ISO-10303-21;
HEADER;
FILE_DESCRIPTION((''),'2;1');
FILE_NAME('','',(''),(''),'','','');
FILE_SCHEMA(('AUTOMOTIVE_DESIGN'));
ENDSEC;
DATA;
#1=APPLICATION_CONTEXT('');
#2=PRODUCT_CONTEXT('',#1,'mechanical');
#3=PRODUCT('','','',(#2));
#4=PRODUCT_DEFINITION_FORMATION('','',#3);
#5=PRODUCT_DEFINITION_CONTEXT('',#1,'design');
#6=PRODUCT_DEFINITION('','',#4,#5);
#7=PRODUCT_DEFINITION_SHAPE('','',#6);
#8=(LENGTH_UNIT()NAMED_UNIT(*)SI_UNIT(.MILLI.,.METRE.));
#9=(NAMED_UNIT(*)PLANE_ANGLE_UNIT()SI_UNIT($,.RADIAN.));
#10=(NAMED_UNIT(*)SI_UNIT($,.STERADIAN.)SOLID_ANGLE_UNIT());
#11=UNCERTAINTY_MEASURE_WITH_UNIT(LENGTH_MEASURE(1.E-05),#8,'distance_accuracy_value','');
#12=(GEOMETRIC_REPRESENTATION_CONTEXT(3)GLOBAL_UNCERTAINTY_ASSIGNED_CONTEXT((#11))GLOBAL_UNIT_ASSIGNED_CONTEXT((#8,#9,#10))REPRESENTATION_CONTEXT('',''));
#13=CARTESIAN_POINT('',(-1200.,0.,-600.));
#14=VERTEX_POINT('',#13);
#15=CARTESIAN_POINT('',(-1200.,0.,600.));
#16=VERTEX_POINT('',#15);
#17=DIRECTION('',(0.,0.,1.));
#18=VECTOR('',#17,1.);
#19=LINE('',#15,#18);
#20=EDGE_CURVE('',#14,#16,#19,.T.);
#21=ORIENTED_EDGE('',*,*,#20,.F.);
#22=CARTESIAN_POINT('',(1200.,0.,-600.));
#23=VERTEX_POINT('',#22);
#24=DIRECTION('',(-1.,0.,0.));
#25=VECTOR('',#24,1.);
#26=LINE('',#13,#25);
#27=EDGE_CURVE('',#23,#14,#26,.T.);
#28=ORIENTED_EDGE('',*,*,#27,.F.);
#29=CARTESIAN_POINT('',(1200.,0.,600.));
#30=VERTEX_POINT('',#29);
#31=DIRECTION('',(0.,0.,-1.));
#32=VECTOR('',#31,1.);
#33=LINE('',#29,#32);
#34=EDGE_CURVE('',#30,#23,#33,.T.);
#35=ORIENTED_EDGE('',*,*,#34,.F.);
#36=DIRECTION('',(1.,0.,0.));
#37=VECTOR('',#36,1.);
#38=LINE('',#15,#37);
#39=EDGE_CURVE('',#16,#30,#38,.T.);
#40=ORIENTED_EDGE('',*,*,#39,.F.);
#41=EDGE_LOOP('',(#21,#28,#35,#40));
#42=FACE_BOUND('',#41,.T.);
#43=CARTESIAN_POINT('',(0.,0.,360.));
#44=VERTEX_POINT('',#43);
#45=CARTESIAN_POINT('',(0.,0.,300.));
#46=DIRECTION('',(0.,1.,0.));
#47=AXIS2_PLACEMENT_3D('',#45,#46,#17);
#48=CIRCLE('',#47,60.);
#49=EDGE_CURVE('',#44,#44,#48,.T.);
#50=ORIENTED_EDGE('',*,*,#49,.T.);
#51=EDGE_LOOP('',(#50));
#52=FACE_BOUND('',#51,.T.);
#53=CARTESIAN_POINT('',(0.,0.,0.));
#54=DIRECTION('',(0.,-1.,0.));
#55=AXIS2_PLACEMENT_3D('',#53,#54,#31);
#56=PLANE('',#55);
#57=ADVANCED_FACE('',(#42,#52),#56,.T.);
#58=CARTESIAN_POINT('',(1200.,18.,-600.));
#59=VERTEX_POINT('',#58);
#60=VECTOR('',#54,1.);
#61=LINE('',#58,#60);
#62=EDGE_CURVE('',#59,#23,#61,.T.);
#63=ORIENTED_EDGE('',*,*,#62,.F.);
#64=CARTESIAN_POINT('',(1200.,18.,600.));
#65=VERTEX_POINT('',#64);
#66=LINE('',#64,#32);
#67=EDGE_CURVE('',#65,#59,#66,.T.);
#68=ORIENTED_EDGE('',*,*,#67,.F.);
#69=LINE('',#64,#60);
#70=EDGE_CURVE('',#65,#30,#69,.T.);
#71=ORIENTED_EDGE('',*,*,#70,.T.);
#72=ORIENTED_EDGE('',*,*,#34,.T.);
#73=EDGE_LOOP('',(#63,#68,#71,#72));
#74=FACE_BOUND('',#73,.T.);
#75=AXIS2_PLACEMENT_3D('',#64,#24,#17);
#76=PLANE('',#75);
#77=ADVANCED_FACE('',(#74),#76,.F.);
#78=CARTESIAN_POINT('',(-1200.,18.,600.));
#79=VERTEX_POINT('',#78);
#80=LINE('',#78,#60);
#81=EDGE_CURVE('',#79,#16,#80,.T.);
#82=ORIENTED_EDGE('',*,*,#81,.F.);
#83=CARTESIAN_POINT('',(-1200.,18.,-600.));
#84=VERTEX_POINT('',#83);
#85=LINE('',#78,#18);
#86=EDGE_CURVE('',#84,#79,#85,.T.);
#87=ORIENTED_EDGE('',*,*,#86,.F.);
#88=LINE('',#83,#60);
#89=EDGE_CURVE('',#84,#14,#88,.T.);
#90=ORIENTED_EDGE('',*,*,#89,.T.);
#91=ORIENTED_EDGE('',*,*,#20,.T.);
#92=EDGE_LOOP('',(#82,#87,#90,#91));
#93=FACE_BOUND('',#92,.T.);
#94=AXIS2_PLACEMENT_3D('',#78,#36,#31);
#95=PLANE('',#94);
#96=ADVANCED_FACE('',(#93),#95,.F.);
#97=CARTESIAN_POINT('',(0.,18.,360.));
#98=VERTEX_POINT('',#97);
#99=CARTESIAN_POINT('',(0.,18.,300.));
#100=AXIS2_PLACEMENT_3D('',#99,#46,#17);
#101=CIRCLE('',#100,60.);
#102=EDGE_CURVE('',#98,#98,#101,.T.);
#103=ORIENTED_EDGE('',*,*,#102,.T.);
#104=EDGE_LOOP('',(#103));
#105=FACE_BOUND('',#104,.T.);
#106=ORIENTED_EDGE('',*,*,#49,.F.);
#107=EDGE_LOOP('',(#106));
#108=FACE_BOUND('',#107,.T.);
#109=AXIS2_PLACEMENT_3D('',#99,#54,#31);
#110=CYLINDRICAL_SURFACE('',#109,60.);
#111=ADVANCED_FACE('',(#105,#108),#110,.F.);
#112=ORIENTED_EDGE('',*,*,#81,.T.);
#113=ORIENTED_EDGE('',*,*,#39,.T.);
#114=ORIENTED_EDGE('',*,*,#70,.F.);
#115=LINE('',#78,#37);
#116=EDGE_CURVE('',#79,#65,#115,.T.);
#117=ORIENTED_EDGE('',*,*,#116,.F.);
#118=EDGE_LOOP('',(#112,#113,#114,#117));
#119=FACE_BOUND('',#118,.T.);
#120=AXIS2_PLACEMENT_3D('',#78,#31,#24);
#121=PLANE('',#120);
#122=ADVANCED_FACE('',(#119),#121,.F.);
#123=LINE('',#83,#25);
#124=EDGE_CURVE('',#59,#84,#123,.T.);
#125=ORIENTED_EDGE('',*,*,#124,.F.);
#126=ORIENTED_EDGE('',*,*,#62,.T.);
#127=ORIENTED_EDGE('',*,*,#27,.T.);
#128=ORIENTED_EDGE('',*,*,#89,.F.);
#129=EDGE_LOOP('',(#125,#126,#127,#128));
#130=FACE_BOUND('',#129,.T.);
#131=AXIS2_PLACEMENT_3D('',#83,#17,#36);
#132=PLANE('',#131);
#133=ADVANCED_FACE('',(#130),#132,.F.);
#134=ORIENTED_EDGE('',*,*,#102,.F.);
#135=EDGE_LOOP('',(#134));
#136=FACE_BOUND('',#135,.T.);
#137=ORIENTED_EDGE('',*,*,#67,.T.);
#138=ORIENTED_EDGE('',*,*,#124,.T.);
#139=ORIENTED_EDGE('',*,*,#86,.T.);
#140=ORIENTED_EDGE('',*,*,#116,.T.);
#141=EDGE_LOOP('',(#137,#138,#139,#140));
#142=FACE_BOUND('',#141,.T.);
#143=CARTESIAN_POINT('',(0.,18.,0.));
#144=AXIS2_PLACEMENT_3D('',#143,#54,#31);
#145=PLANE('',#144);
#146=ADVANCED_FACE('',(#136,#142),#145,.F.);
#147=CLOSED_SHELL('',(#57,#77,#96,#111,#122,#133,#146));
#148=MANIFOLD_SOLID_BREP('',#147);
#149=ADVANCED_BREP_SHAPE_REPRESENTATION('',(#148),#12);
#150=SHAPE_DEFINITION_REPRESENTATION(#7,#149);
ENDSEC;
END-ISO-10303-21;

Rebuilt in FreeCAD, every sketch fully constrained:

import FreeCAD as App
import Part
import Sketcher
from FreeCAD import Vector
Q = App.Units.Quantity


def add_polygon(sketch, points):
    """Adds a closed chain of lines whose ends are joined by coincident constraints."""
    first, n = sketch.GeometryCount, len(points)
    for a, b in zip(points, points[1:] + points[:1]):
        sketch.addGeometry(Part.LineSegment(App.Vector(*a, 0), App.Vector(*b, 0)), False)
    for i in range(n):
        sketch.addConstraint(Sketcher.Constraint("Coincident", first + i, 2, first + (i + 1) % n, 1))

doc = App.newDocument("Part")
body = doc.addObject("PartDesign::Body", "Body")

# Sketch on XZ plane
sketch1 = body.newObject("Sketcher::SketchObject", "Sketch")
sketch1.AttachmentSupport = (doc.getObject("XZ_Plane"), [""])
sketch1.MapMode = "FlatFace"
add_polygon(sketch1, [(-1200, -600), (-1200, 600), (1200, 600), (1200, -600)])  # lines 0-3
sketch1.addGeometry(Part.Circle(Vector(0, 300, 0), Vector(0, 0, 1), 60), False)  # 4
sketch1.addConstraint([
    Sketcher.Constraint("Vertical", 0),
    Sketcher.Constraint("Horizontal", 1),
    Sketcher.Constraint("Vertical", 2),
    Sketcher.Constraint("Horizontal", 3),
    Sketcher.Constraint("Symmetric", 0, 2, 2, 2, -1, 1),
    Sketcher.Constraint("PointOnObject", 4, 3, -2),
    Sketcher.Constraint("Diameter", 4, Q("120 mm")),
    Sketcher.Constraint("DistanceX", 1, 1, 1, 2, Q("2400 mm")),
    Sketcher.Constraint("DistanceY", 0, 1, 0, 2, Q("1200 mm")),
    Sketcher.Constraint("DistanceY", -1, 1, 4, 3, Q("300 mm")),
])
pad1 = body.newObject("PartDesign::Pad", "Pad")
pad1.Profile = sketch1
pad1.Length = 18
pad1.Reversed = True

doc.recompute()
